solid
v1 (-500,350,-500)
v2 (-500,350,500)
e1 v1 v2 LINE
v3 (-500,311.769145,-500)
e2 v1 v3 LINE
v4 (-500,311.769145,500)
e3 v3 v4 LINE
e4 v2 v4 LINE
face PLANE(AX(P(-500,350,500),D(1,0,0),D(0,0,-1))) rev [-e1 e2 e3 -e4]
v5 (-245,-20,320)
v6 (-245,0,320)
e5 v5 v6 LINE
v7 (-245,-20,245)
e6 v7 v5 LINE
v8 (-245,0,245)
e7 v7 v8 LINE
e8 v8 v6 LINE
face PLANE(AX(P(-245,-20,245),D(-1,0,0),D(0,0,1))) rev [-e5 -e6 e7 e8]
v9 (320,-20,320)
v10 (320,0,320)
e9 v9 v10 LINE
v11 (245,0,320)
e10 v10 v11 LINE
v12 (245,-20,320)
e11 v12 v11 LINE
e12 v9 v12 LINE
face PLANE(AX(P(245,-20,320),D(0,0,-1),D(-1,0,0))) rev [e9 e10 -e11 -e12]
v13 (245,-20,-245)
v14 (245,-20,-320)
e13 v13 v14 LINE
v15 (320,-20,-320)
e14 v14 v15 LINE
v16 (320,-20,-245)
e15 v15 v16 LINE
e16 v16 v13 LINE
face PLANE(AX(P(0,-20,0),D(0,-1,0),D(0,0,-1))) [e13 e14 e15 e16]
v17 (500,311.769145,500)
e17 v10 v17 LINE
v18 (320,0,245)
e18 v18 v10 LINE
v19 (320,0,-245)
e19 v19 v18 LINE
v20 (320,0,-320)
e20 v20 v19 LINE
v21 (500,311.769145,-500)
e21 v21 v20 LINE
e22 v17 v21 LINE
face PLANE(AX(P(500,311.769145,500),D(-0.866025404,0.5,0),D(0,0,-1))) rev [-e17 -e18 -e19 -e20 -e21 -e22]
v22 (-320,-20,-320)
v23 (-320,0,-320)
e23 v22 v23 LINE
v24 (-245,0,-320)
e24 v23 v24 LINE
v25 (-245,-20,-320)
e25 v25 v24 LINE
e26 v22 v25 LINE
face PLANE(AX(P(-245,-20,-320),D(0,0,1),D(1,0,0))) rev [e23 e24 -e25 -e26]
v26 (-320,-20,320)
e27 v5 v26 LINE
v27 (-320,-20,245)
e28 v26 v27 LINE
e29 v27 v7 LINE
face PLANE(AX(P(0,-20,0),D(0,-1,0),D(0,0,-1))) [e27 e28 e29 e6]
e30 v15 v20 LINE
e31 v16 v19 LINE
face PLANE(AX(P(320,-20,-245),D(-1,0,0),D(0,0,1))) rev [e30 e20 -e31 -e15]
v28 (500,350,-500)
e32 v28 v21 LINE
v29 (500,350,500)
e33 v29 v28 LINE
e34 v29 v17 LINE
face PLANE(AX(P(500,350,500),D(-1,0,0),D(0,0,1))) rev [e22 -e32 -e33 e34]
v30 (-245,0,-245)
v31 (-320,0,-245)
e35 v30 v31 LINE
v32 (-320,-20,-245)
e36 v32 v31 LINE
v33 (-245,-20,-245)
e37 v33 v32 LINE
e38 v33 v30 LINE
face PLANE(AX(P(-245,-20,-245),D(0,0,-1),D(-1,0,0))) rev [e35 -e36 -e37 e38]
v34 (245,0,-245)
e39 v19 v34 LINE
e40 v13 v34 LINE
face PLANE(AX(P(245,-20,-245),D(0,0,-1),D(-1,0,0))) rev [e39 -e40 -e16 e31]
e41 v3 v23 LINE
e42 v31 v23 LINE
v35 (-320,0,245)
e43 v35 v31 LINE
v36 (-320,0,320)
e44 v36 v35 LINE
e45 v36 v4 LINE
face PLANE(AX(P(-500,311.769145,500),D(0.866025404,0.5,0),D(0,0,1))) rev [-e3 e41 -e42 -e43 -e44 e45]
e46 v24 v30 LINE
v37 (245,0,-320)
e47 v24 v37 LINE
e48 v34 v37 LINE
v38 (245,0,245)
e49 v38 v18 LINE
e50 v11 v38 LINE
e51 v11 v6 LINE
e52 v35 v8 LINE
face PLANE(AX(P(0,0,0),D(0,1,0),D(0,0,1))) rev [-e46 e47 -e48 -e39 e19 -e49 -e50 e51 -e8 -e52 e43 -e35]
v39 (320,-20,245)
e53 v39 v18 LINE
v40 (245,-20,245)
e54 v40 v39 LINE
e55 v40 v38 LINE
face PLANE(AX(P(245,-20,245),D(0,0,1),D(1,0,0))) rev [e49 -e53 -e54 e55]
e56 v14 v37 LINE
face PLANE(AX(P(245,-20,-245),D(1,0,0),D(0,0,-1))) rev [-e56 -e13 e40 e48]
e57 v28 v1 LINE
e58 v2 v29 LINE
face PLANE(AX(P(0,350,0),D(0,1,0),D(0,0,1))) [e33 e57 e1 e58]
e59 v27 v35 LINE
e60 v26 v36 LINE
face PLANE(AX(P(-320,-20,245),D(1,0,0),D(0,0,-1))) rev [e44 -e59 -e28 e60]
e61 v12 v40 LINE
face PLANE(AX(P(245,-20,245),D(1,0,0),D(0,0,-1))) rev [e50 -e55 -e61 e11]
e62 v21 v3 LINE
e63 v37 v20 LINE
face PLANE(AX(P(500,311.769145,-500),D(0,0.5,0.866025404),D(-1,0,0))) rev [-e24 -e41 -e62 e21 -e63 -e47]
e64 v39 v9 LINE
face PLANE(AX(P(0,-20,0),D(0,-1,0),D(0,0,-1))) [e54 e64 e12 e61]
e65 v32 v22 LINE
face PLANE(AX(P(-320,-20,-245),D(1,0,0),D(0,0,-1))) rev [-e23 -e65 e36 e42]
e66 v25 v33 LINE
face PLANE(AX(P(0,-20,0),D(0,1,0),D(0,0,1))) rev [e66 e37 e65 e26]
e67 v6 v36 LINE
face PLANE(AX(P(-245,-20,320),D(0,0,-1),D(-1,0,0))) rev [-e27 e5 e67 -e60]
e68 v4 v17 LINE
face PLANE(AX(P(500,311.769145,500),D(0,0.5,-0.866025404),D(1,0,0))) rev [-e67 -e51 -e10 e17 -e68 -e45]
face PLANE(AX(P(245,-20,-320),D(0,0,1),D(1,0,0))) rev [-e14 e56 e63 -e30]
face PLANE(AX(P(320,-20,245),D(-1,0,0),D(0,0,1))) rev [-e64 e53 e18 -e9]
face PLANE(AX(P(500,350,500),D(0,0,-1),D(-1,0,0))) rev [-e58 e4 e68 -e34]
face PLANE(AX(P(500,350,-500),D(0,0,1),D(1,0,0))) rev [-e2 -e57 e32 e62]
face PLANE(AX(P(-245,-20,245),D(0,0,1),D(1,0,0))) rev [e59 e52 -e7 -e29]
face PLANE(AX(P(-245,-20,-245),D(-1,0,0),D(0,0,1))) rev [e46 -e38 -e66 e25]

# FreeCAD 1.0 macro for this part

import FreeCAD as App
import Part
import Sketcher
from FreeCAD import Vector
Q = App.Units.Quantity


def edges_at(feature, points):
    """Names of the edges that pass closest to the given points."""
    edges = feature.Shape.Edges
    near = lambda p: min(range(len(edges)), key=lambda i: edges[i].distToShape(Part.Vertex(*p))[0])
    return sorted({f"Edge{near(p) + 1}" for p in points})


def add_polygon(sketch, points):
    """Adds a closed chain of lines whose ends are joined by coincident constraints."""
    first, n = sketch.GeometryCount, len(points)
    for a, b in zip(points, points[1:] + points[:1]):
        sketch.addGeometry(Part.LineSegment(App.Vector(*a, 0), App.Vector(*b, 0)), False)
    for i in range(n):
        sketch.addConstraint(Sketcher.Constraint("Coincident", first + i, 2, first + (i + 1) % n, 1))

doc = App.newDocument("Part")
params = doc.addObject("Spreadsheet::Sheet", "Params")
for row, (alias, value) in enumerate([
    ("sketch1_width", "1000 mm"),
    ("pad1_length", "350 mm"),
    ("chamfer_size", "180 mm"),
    ("chamfer_size2", "311.769145 mm"),
    ("sketch2_width", "75 mm"),
    ("pad2_length", "20 mm"),
], start=1):
    params.set(f"A{row}", alias)
    params.set(f"B{row}", "=" + value)
    params.setAlias(f"B{row}", alias)

body = doc.addObject("PartDesign::Body", "Body")

# Sketch on XZ plane
sketch1 = body.newObject("Sketcher::SketchObject", "Sketch")
sketch1.AttachmentSupport = (doc.getObject("XZ_Plane"), [""])
sketch1.MapMode = "FlatFace"
add_polygon(sketch1, [(-500, -500), (-500, 500), (500, 500), (500, -500)])  # lines 0-3
sketch1.addConstraint(Sketcher.Constraint("Vertical", 0))
sketch1.addConstraint(Sketcher.Constraint("Horizontal", 1))
sketch1.addConstraint(Sketcher.Constraint("Vertical", 2))
sketch1.addConstraint(Sketcher.Constraint("Horizontal", 3))
sketch1.addConstraint(Sketcher.Constraint("Symmetric", 0, 2, 2, 2, -1, 1))
sketch1.addConstraint(Sketcher.Constraint("Equal", 3, 0))
sketch1.addConstraint(Sketcher.Constraint("DistanceX", 1, 1, 1, 2, Q("1000 mm")))
sketch1.setExpression("Constraints[10]", "Params.sketch1_width")
pad1 = body.newObject("PartDesign::Pad", "Pad")
pad1.Profile = sketch1
pad1.setExpression("Length", "Params.pad1_length")
pad1.Reversed = True
doc.recompute()

chamfer = body.newObject("PartDesign::Chamfer", "Chamfer")
chamfer.Base = (pad1, edges_at(pad1, [
    (0, 0, -500),
    (500, 0, 0),
    (0, 0, 500),
    (-500, 0, 0),
]))
chamfer.ChamferType = "Two distances"
chamfer.setExpression("Size", "Params.chamfer_size")
chamfer.setExpression("Size2", "Params.chamfer_size2")
chamfer.FlipDirection = True

# Sketch on XZ plane
sketch2 = body.newObject("Sketcher::SketchObject", "Sketch001")
sketch2.AttachmentSupport = (doc.getObject("XZ_Plane"), [""])
sketch2.MapMode = "FlatFace"
add_polygon(sketch2, [(-320, 320), (-320, 245), (-245, 245), (-245, 320)])  # lines 0-3
add_polygon(sketch2, [(245, 320), (245, 245), (320, 245), (320, 320)])  # lines 4-7
add_polygon(sketch2, [(245, -245), (245, -320), (320, -320), (320, -245)])  # lines 8-11
add_polygon(sketch2, [(-320, -245), (-320, -320), (-245, -320), (-245, -245)])  # lines 12-15
sketch2.addConstraint(Sketcher.Constraint("Vertical", 0))
sketch2.addConstraint(Sketcher.Constraint("Horizontal", 1))
sketch2.addConstraint(Sketcher.Constraint("Vertical", 2))
sketch2.addConstraint(Sketcher.Constraint("Horizontal", 3))
sketch2.addConstraint(Sketcher.Constraint("Vertical", 4))
sketch2.addConstraint(Sketcher.Constraint("Horizontal", 5))
sketch2.addConstraint(Sketcher.Constraint("Vertical", 6))
sketch2.addConstraint(Sketcher.Constraint("Horizontal", 7))
sketch2.addConstraint(Sketcher.Constraint("Vertical", 8))
sketch2.addConstraint(Sketcher.Constraint("Horizontal", 9))
sketch2.addConstraint(Sketcher.Constraint("Vertical", 10))
sketch2.addConstraint(Sketcher.Constraint("Horizontal", 11))
sketch2.addConstraint(Sketcher.Constraint("Vertical", 12))
sketch2.addConstraint(Sketcher.Constraint("Horizontal", 13))
sketch2.addConstraint(Sketcher.Constraint("Vertical", 14))
sketch2.addConstraint(Sketcher.Constraint("Horizontal", 15))
sketch2.addConstraint(Sketcher.Constraint("Symmetric", 2, 2, 8, 2, -1, 1))
sketch2.addConstraint(Sketcher.Constraint("Symmetric", 0, 2, 10, 2, -1, 1))
sketch2.addConstraint(Sketcher.Constraint("Symmetric", 6, 2, 12, 2, -1, 1))
sketch2.addConstraint(Sketcher.Constraint("Symmetric", 4, 2, 14, 2, -1, 1))
sketch2.addConstraint(Sketcher.Constraint("Symmetric", 1, 2, 4, 2, -2))
sketch2.addConstraint(Sketcher.Constraint("Symmetric", 3, 2, 6, 2, -2))
sketch2.addConstraint(Sketcher.Constraint("Equal", 15, 0))
sketch2.addConstraint(Sketcher.Constraint("DistanceX", 1, 1, 1, 2, Q("75 mm")))
sketch2.addConstraint(Sketcher.Constraint("DistanceX", 0, 2, -1, 1, Q("320 mm")))
sketch2.addConstraint(Sketcher.Constraint("DistanceY", -1, 1, 0, 2, Q("245 mm")))
sketch2.setExpression("Constraints[39]", "Params.sketch2_width")
pad2 = body.newObject("PartDesign::Pad", "Pad001")
pad2.Profile = sketch2
pad2.setExpression("Length", "Params.pad2_length")

doc.recompute()
